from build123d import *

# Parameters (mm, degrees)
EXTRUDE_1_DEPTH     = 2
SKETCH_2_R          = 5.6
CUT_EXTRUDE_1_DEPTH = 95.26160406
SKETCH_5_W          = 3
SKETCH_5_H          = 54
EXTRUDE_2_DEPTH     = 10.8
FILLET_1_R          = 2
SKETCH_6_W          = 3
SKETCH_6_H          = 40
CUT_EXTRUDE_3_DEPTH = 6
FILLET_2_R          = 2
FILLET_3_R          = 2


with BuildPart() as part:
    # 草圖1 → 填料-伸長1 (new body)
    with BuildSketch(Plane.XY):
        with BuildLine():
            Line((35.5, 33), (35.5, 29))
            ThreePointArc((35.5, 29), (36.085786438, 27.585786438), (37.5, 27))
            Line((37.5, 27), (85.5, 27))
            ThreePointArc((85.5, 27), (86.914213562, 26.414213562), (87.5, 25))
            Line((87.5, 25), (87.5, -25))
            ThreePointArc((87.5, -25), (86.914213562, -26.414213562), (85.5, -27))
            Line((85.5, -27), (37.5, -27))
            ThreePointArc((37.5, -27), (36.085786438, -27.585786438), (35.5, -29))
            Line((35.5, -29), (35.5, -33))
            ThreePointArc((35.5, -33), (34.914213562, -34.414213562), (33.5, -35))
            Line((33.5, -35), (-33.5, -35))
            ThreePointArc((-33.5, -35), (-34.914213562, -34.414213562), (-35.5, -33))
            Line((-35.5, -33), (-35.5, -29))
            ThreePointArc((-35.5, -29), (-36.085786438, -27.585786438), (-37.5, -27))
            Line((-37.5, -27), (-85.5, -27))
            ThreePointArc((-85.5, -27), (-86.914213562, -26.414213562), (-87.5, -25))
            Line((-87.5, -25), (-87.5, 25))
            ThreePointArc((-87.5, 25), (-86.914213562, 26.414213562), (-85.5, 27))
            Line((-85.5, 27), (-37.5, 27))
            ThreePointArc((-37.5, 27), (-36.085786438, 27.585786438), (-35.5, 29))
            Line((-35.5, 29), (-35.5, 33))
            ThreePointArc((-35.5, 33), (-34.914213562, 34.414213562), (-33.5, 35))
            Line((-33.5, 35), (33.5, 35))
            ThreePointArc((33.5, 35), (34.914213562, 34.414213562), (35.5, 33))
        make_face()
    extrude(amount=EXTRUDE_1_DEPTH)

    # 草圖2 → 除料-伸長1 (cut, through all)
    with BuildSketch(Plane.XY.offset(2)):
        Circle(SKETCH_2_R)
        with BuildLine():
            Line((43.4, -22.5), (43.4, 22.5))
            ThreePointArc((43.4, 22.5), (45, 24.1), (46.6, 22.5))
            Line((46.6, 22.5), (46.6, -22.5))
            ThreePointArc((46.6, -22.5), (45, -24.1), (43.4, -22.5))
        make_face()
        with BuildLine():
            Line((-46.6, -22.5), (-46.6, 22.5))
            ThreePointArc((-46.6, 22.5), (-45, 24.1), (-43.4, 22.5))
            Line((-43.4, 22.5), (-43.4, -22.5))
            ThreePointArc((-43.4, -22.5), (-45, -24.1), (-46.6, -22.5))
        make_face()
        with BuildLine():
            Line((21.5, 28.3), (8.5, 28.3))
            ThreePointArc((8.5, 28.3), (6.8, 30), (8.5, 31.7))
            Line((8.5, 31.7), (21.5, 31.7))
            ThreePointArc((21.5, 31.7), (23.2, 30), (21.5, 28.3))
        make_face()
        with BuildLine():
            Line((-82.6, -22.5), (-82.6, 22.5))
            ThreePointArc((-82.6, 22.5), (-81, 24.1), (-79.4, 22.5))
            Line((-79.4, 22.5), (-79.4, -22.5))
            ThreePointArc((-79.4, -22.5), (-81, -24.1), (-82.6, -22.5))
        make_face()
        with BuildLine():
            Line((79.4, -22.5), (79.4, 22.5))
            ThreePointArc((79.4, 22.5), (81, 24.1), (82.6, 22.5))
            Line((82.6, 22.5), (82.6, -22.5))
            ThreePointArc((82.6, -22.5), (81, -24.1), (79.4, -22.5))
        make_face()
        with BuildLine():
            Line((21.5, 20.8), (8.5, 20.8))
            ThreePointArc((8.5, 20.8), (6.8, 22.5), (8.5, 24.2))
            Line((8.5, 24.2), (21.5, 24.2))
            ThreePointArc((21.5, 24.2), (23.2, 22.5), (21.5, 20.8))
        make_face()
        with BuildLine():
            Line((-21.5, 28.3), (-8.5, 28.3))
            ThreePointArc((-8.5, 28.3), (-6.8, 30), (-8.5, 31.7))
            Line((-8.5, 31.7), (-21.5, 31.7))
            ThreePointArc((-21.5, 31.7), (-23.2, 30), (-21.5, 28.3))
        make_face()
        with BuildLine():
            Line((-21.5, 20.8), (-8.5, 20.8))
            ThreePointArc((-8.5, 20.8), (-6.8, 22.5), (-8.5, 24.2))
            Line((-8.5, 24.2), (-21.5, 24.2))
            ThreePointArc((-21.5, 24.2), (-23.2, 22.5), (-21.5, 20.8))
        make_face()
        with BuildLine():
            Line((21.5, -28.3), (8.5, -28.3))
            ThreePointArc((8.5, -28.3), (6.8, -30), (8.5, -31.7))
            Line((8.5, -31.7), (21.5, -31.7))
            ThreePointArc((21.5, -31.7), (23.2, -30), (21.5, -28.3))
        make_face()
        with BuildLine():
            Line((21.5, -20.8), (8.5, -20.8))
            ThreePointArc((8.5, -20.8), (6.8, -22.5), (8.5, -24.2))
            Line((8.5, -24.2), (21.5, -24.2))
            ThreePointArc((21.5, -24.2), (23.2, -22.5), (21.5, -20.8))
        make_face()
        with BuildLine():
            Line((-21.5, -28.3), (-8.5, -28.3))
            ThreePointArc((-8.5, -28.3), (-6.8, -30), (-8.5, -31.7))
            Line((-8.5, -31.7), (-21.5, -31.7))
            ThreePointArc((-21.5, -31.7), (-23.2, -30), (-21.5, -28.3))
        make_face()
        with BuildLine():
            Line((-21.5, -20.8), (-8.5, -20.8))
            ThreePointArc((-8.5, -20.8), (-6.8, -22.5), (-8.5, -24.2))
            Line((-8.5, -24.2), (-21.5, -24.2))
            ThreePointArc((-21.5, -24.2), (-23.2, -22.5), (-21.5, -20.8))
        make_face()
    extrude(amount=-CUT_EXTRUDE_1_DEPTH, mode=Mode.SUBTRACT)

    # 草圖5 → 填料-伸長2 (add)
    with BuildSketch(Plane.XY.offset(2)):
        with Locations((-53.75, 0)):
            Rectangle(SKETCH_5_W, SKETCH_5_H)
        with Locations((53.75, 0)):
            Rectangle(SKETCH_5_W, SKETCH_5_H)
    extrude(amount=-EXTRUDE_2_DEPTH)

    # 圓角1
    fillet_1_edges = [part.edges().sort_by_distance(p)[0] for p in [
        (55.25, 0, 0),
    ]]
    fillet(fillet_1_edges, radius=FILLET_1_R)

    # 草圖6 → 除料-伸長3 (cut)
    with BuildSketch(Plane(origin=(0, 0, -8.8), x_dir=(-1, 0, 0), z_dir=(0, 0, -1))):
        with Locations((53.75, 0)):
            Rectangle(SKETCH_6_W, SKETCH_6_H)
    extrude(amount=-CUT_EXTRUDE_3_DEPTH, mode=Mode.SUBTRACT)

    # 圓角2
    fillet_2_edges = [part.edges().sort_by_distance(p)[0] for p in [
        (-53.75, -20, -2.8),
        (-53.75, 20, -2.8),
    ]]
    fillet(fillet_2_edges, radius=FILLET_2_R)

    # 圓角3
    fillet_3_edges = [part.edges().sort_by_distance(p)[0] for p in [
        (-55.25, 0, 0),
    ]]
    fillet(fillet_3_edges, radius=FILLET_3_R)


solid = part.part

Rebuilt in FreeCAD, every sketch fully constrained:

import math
import FreeCAD as App
import Part
import Sketcher
from FreeCAD import Vector
Q = App.Units.Quantity


def edges_at(feature, points):
    """Names of the edges that pass closest to the given points."""
    edges = feature.Shape.Edges
    near = lambda p: min(range(len(edges)), key=lambda i: edges[i].distToShape(Part.Vertex(*p))[0])
    return sorted({f"Edge{near(p) + 1}" for p in points})


def add_polygon(sketch, points):
    """Adds a closed chain of lines whose ends are joined by coincident constraints."""
    first, n = sketch.GeometryCount, len(points)
    for a, b in zip(points, points[1:] + points[:1]):
        sketch.addGeometry(Part.LineSegment(App.Vector(*a, 0), App.Vector(*b, 0)), False)
    for i in range(n):
        sketch.addConstraint(Sketcher.Constraint("Coincident", first + i, 2, first + (i + 1) % n, 1))

doc = App.newDocument("Part")
params = doc.addObject("Spreadsheet::Sheet", "Params")
for row, (alias, value) in enumerate([
    ("sketch1_radius", "2 mm"),
    ("sketch1_width", "67 mm"),
    ("sketch1_width2", "48 mm"),
    ("sketch1_height", "4 mm"),
    ("sketch1_height2", "50 mm"),
    ("pad1_length", "2 mm"),
    ("sketch2_diameter", "11.2 mm"),
    ("sketch2_radius", "1.6 mm"),
    ("sketch2_radius2", "1.7 mm"),
    ("sketch2_width", "13 mm"),
    ("sketch2_height", "45 mm"),
    ("sketch3_width", "3 mm"),
    ("sketch3_height", "54 mm"),
    ("pad2_length", "10.8 mm"),
    ("fillet_radius", "2 mm"),
    ("sketch4_width", "3 mm"),
    ("sketch4_height", "40 mm"),
    ("pocket2_length", "6 mm"),
    ("fillet2_radius", "2 mm"),
    ("fillet3_radius", "2 mm"),
], start=1):
    params.set(f"A{row}", alias)
    params.set(f"B{row}", "=" + value)
    params.setAlias(f"B{row}", alias)

body = doc.addObject("PartDesign::Body", "Body")

# Sketch on XY plane
sketch1 = doc.addObject("Sketcher::SketchObject", "Sketch")
body.addObject(sketch1)
sketch1.AttachmentSupport = (doc.XY_Plane, [""])
sketch1.MapMode = "FlatFace"
sketch1.addGeometry([
    Part.LineSegment(Vector(35.5, 29, 0), Vector(35.5, 33, 0)),  # 0
    Part.ArcOfCircle(Part.Circle(Vector(33.5, 33, 0), Vector(0, 0, 1), 2), math.radians(0), math.radians(90)),  # 1
    Part.LineSegment(Vector(33.5, 35, 0), Vector(-33.5, 35, 0)),  # 2
    Part.ArcOfCircle(Part.Circle(Vector(-33.5, 33, 0), Vector(0, 0, 1), 2), math.radians(90), math.radians(180)),  # 3
    Part.LineSegment(Vector(-35.5, 33, 0), Vector(-35.5, 29, 0)),  # 4
    Part.ArcOfCircle(Part.Circle(Vector(-37.5, 29, 0), Vector(0, 0, 1), 2), math.radians(-90), math.radians(0)),  # 5
    Part.LineSegment(Vector(-37.5, 27, 0), Vector(-85.5, 27, 0)),  # 6
    Part.ArcOfCircle(Part.Circle(Vector(-85.5, 25, 0), Vector(0, 0, 1), 2), math.radians(90), math.radians(180)),  # 7
    Part.LineSegment(Vector(-87.5, 25, 0), Vector(-87.5, -25, 0)),  # 8
    Part.ArcOfCircle(Part.Circle(Vector(-85.5, -25, 0), Vector(0, 0, 1), 2), math.radians(-180), math.radians(-90)),  # 9
    Part.LineSegment(Vector(-85.5, -27, 0), Vector(-37.5, -27, 0)),  # 10
    Part.ArcOfCircle(Part.Circle(Vector(-37.5, -29, 0), Vector(0, 0, 1), 2), math.radians(0), math.radians(90)),  # 11
    Part.LineSegment(Vector(-35.5, -29, 0), Vector(-35.5, -33, 0)),  # 12
    Part.ArcOfCircle(Part.Circle(Vector(-33.5, -33, 0), Vector(0, 0, 1), 2), math.radians(-180), math.radians(-90)),  # 13
    Part.LineSegment(Vector(-33.5, -35, 0), Vector(33.5, -35, 0)),  # 14
    Part.ArcOfCircle(Part.Circle(Vector(33.5, -33, 0), Vector(0, 0, 1), 2), math.radians(-90), math.radians(0)),  # 15
    Part.LineSegment(Vector(35.5, -33, 0), Vector(35.5, -29, 0)),  # 16
    Part.ArcOfCircle(Part.Circle(Vector(37.5, -29, 0), Vector(0, 0, 1), 2), math.radians(90), math.radians(180)),  # 17
    Part.LineSegment(Vector(37.5, -27, 0), Vector(85.5, -27, 0)),  # 18
    Part.ArcOfCircle(Part.Circle(Vector(85.5, -25, 0), Vector(0, 0, 1), 2), math.radians(-90), math.radians(0)),  # 19
    Part.LineSegment(Vector(87.5, -25, 0), Vector(87.5, 25, 0)),  # 20
    Part.ArcOfCircle(Part.Circle(Vector(85.5, 25, 0), Vector(0, 0, 1), 2), math.radians(0), math.radians(90)),  # 21
    Part.LineSegment(Vector(85.5, 27, 0), Vector(37.5, 27, 0)),  # 22
    Part.ArcOfCircle(Part.Circle(Vector(37.5, 29, 0), Vector(0, 0, 1), 2), math.radians(-180), math.radians(-90)),  # 23
], False)
sketch1.addConstraint([
    Sketcher.Constraint("Tangent", 0, 2, 1, 1),
    Sketcher.Constraint("Tangent", 1, 2, 2, 1),
    Sketcher.Constraint("Tangent", 2, 2, 3, 1),
    Sketcher.Constraint("Tangent", 3, 2, 4, 1),
    Sketcher.Constraint("Tangent", 4, 2, 5, 2),
    Sketcher.Constraint("Tangent", 5, 1, 6, 1),
    Sketcher.Constraint("Tangent", 6, 2, 7, 1),
    Sketcher.Constraint("Tangent", 7, 2, 8, 1),
    Sketcher.Constraint("Tangent", 8, 2, 9, 1),
    Sketcher.Constraint("Tangent", 9, 2, 10, 1),
    Sketcher.Constraint("Tangent", 10, 2, 11, 2),
    Sketcher.Constraint("Tangent", 11, 1, 12, 1),
    Sketcher.Constraint("Tangent", 12, 2, 13, 1),
    Sketcher.Constraint("Tangent", 13, 2, 14, 1),
    Sketcher.Constraint("Tangent", 14, 2, 15, 1),
    Sketcher.Constraint("Tangent", 15, 2, 16, 1),
    Sketcher.Constraint("Tangent", 16, 2, 17, 2),
    Sketcher.Constraint("Tangent", 17, 1, 18, 1),
    Sketcher.Constraint("Tangent", 18, 2, 19, 1),
    Sketcher.Constraint("Tangent", 19, 2, 20, 1),
    Sketcher.Constraint("Tangent", 20, 2, 21, 1),
    Sketcher.Constraint("Tangent", 21, 2, 22, 1),
    Sketcher.Constraint("Tangent", 22, 2, 23, 2),
    Sketcher.Constraint("Tangent", 23, 1, 0, 1),
    Sketcher.Constraint("Vertical", 0),
    Sketcher.Constraint("Horizontal", 2),
    Sketcher.Constraint("Vertical", 4),
    Sketcher.Constraint("Horizontal", 6),
    Sketcher.Constraint("Vertical", 8),
    Sketcher.Constraint("Horizontal", 10),
    Sketcher.Constraint("Vertical", 12),
    Sketcher.Constraint("Horizontal", 14),
    Sketcher.Constraint("Vertical", 16),
    Sketcher.Constraint("Horizontal", 18),
    Sketcher.Constraint("Vertical", 20),
    Sketcher.Constraint("Horizontal", 22),
    Sketcher.Constraint("Equal", 1, 3),
    Sketcher.Constraint("Equal", 3, 5),
    Sketcher.Constraint("Equal", 5, 7),
    Sketcher.Constraint("Equal", 7, 9),
    Sketcher.Constraint("Equal", 9, 11),
    Sketcher.Constraint("Equal", 11, 13),
    Sketcher.Constraint("Equal", 13, 15),
    Sketcher.Constraint("Equal", 15, 17),
    Sketcher.Constraint("Equal", 17, 19),
    Sketcher.Constraint("Equal", 19, 21),
    Sketcher.Constraint("Equal", 21, 23),
    Sketcher.Constraint("Symmetric", 1, 3, 13, 3, -1, 1),
    Sketcher.Constraint("Symmetric", 5, 3, 17, 3, -1, 1),
    Sketcher.Constraint("Symmetric", 9, 3, 21, 3, -1, 1),
    Sketcher.Constraint("Symmetric", 11, 3, 17, 3, -2),
    Sketcher.Constraint("Radius", 1, Q("2 mm")),
    Sketcher.Constraint("DistanceX", 2, 2, 2, 1, Q("67 mm")),
    Sketcher.Constraint("DistanceX", 6, 2, 6, 1, Q("48 mm")),
    Sketcher.Constraint("DistanceY", 0, 1, 0, 2, Q("4 mm")),
    Sketcher.Constraint("DistanceY", 8, 2, 8, 1, Q("50 mm")),
])
sketch1.setExpression("Constraints[51]", "Params.sketch1_radius")
sketch1.setExpression("Constraints[52]", "Params.sketch1_width")
sketch1.setExpression("Constraints[53]", "Params.sketch1_width2")
sketch1.setExpression("Constraints[54]", "Params.sketch1_height")
sketch1.setExpression("Constraints[55]", "Params.sketch1_height2")
pad1 = doc.addObject("PartDesign::Pad", "Pad")
body.addObject(pad1)
pad1.Profile = sketch1
pad1.setExpression("Length", "Params.pad1_length")

# Sketch on XY plane
sketch2 = doc.addObject("Sketcher::SketchObject", "Sketch001")
body.addObject(sketch2)
sketch2.AttachmentSupport = (doc.XY_Plane, [""])
sketch2.MapMode = "FlatFace"
sketch2.AttachmentOffset = App.Placement(Vector(0, 0, 2), App.Rotation())
sketch2.addGeometry([
    Part.Circle(Vector(0, 0, 0), Vector(0, 0, 1), 5.6),  # 0
    Part.LineSegment(Vector(43.4, 22.5, 0), Vector(43.4, -22.5, 0)),  # 1
    Part.ArcOfCircle(Part.Circle(Vector(45, -22.5, 0), Vector(0, 0, 1), 1.6), math.radians(180), math.radians(360)),  # 2
    Part.LineSegment(Vector(46.6, -22.5, 0), Vector(46.6, 22.5, 0)),  # 3
    Part.ArcOfCircle(Part.Circle(Vector(45, 22.5, 0), Vector(0, 0, 1), 1.6), math.radians(0), math.radians(180)),  # 4
    Part.LineSegment(Vector(-46.6, 22.5, 0), Vector(-46.6, -22.5, 0)),  # 5
    Part.ArcOfCircle(Part.Circle(Vector(-45, -22.5, 0), Vector(0, 0, 1), 1.6), math.radians(180), math.radians(360)),  # 6
    Part.LineSegment(Vector(-43.4, -22.5, 0), Vector(-43.4, 22.5, 0)),  # 7
    Part.ArcOfCircle(Part.Circle(Vector(-45, 22.5, 0), Vector(0, 0, 1), 1.6), math.radians(0), math.radians(180)),  # 8
    Part.LineSegment(Vector(8.5, 28.3, 0), Vector(21.5, 28.3, 0)),  # 9
    Part.ArcOfCircle(Part.Circle(Vector(21.5, 30, 0), Vector(0, 0, 1), 1.7), math.radians(-90), math.radians(90)),  # 10
    Part.LineSegment(Vector(21.5, 31.7, 0), Vector(8.5, 31.7, 0)),  # 11
    Part.ArcOfCircle(Part.Circle(Vector(8.5, 30, 0), Vector(0, 0, 1), 1.7), math.radians(90), math.radians(270)),  # 12
    Part.LineSegment(Vector(-82.6, 22.5, 0), Vector(-82.6, -22.5, 0)),  # 13
    Part.ArcOfCircle(Part.Circle(Vector(-81, -22.5, 0), Vector(0, 0, 1), 1.6), math.radians(180), math.radians(360)),  # 14
    Part.LineSegment(Vector(-79.4, -22.5, 0), Vector(-79.4, 22.5, 0)),  # 15
    Part.ArcOfCircle(Part.Circle(Vector(-81, 22.5, 0), Vector(0, 0, 1), 1.6), math.radians(0), math.radians(180)),  # 16
    Part.LineSegment(Vector(79.4, 22.5, 0), Vector(79.4, -22.5, 0)),  # 17
    Part.ArcOfCircle(Part.Circle(Vector(81, -22.5, 0), Vector(0, 0, 1), 1.6), math.radians(180), math.radians(360)),  # 18
    Part.LineSegment(Vector(82.6, -22.5, 0), Vector(82.6, 22.5, 0)),  # 19
    Part.ArcOfCircle(Part.Circle(Vector(81, 22.5, 0), Vector(0, 0, 1), 1.6), math.radians(0), math.radians(180)),  # 20
    Part.LineSegment(Vector(8.5, 20.8, 0), Vector(21.5, 20.8, 0)),  # 21
    Part.ArcOfCircle(Part.Circle(Vector(21.5, 22.5, 0), Vector(0, 0, 1), 1.7), math.radians(-90), math.radians(90)),  # 22
    Part.LineSegment(Vector(21.5, 24.2, 0), Vector(8.5, 24.2, 0)),  # 23
    Part.ArcOfCircle(Part.Circle(Vector(8.5, 22.5, 0), Vector(0, 0, 1), 1.7), math.radians(90), math.radians(270)),  # 24
    Part.LineSegment(Vector(-21.5, 28.3, 0), Vector(-8.5, 28.3, 0)),  # 25
    Part.ArcOfCircle(Part.Circle(Vector(-8.5, 30, 0), Vector(0, 0, 1), 1.7), math.radians(-90), math.radians(90)),  # 26
    Part.LineSegment(Vector(-8.5, 31.7, 0), Vector(-21.5, 31.7, 0)),  # 27
    Part.ArcOfCircle(Part.Circle(Vector(-21.5, 30, 0), Vector(0, 0, 1), 1.7), math.radians(90), math.radians(270)),  # 28
    Part.LineSegment(Vector(-21.5, 20.8, 0), Vector(-8.5, 20.8, 0)),  # 29
    Part.ArcOfCircle(Part.Circle(Vector(-8.5, 22.5, 0), Vector(0, 0, 1), 1.7), math.radians(-90), math.radians(90)),  # 30
    Part.LineSegment(Vector(-8.5, 24.2, 0), Vector(-21.5, 24.2, 0)),  # 31
    Part.ArcOfCircle(Part.Circle(Vector(-21.5, 22.5, 0), Vector(0, 0, 1), 1.7), math.radians(90), math.radians(270)),  # 32
    Part.LineSegment(Vector(21.5, -28.3, 0), Vector(8.5, -28.3, 0)),  # 33
    Part.ArcOfCircle(Part.Circle(Vector(8.5, -30, 0), Vector(0, 0, 1), 1.7), math.radians(90), math.radians(270)),  # 34
    Part.LineSegment(Vector(8.5, -31.7, 0), Vector(21.5, -31.7, 0)),  # 35
    Part.ArcOfCircle(Part.Circle(Vector(21.5, -30, 0), Vector(0, 0, 1), 1.7), math.radians(-90), math.radians(90)),  # 36
    Part.LineSegment(Vector(21.5, -20.8, 0), Vector(8.5, -20.8, 0)),  # 37
    Part.ArcOfCircle(Part.Circle(Vector(8.5, -22.5, 0), Vector(0, 0, 1), 1.7), math.radians(90), math.radians(270)),  # 38
    Part.LineSegment(Vector(8.5, -24.2, 0), Vector(21.5, -24.2, 0)),  # 39
    Part.ArcOfCircle(Part.Circle(Vector(21.5, -22.5, 0), Vector(0, 0, 1), 1.7), math.radians(-90), math.radians(90)),  # 40
    Part.LineSegment(Vector(-8.5, -28.3, 0), Vector(-21.5, -28.3, 0)),  # 41
    Part.ArcOfCircle(Part.Circle(Vector(-21.5, -30, 0), Vector(0, 0, 1), 1.7), math.radians(90), math.radians(270)),  # 42
    Part.LineSegment(Vector(-21.5, -31.7, 0), Vector(-8.5, -31.7, 0)),  # 43
    Part.ArcOfCircle(Part.Circle(Vector(-8.5, -30, 0), Vector(0, 0, 1), 1.7), math.radians(-90), math.radians(90)),  # 44
    Part.LineSegment(Vector(-8.5, -20.8, 0), Vector(-21.5, -20.8, 0)),  # 45
    Part.ArcOfCircle(Part.Circle(Vector(-21.5, -22.5, 0), Vector(0, 0, 1), 1.7), math.radians(90), math.radians(270)),  # 46
    Part.LineSegment(Vector(-21.5, -24.2, 0), Vector(-8.5, -24.2, 0)),  # 47
    Part.ArcOfCircle(Part.Circle(Vector(-8.5, -22.5, 0), Vector(0, 0, 1), 1.7), math.radians(-90), math.radians(90)),  # 48
], False)
sketch2.addConstraint([
    Sketcher.Constraint("Tangent", 1, 2, 2, 1),
    Sketcher.Constraint("Tangent", 2, 2, 3, 1),
    Sketcher.Constraint("Tangent", 3, 2, 4, 1),
    Sketcher.Constraint("Tangent", 4, 2, 1, 1),
    Sketcher.Constraint("Tangent", 5, 2, 6, 1),
    Sketcher.Constraint("Tangent", 6, 2, 7, 1),
    Sketcher.Constraint("Tangent", 7, 2, 8, 1),
    Sketcher.Constraint("Tangent", 8, 2, 5, 1),
    Sketcher.Constraint("Tangent", 9, 2, 10, 1),
    Sketcher.Constraint("Tangent", 10, 2, 11, 1),
    Sketcher.Constraint("Tangent", 11, 2, 12, 1),
    Sketcher.Constraint("Tangent", 12, 2, 9, 1),
    Sketcher.Constraint("Tangent", 13, 2, 14, 1),
    Sketcher.Constraint("Tangent", 14, 2, 15, 1),
    Sketcher.Constraint("Tangent", 15, 2, 16, 1),
    Sketcher.Constraint("Tangent", 16, 2, 13, 1),
    Sketcher.Constraint("Tangent", 17, 2, 18, 1),
    Sketcher.Constraint("Tangent", 18, 2, 19, 1),
    Sketcher.Constraint("Tangent", 19, 2, 20, 1),
    Sketcher.Constraint("Tangent", 20, 2, 17, 1),
    Sketcher.Constraint("Tangent", 21, 2, 22, 1),
    Sketcher.Constraint("Tangent", 22, 2, 23, 1),
    Sketcher.Constraint("Tangent", 23, 2, 24, 1),
    Sketcher.Constraint("Tangent", 24, 2, 21, 1),
    Sketcher.Constraint("Tangent", 25, 2, 26, 1),
    Sketcher.Constraint("Tangent", 26, 2, 27, 1),
    Sketcher.Constraint("Tangent", 27, 2, 28, 1),
    Sketcher.Constraint("Tangent", 28, 2, 25, 1),
    Sketcher.Constraint("Tangent", 29, 2, 30, 1),
    Sketcher.Constraint("Tangent", 30, 2, 31, 1),
    Sketcher.Constraint("Tangent", 31, 2, 32, 1),
    Sketcher.Constraint("Tangent", 32, 2, 29, 1),
    Sketcher.Constraint("Tangent", 33, 2, 34, 1),
    Sketcher.Constraint("Tangent", 34, 2, 35, 1),
    Sketcher.Constraint("Tangent", 35, 2, 36, 1),
    Sketcher.Constraint("Tangent", 36, 2, 33, 1),
    Sketcher.Constraint("Tangent", 37, 2, 38, 1),
    Sketcher.Constraint("Tangent", 38, 2, 39, 1),
    Sketcher.Constraint("Tangent", 39, 2, 40, 1),
    Sketcher.Constraint("Tangent", 40, 2, 37, 1),
    Sketcher.Constraint("Tangent", 41, 2, 42, 1),
    Sketcher.Constraint("Tangent", 42, 2, 43, 1),
    Sketcher.Constraint("Tangent", 43, 2, 44, 1),
    Sketcher.Constraint("Tangent", 44, 2, 41, 1),
    Sketcher.Constraint("Tangent", 45, 2, 46, 1),
    Sketcher.Constraint("Tangent", 46, 2, 47, 1),
    Sketcher.Constraint("Tangent", 47, 2, 48, 1),
    Sketcher.Constraint("Tangent", 48, 2, 45, 1),
    Sketcher.Constraint("Vertical", 1),
    Sketcher.Constraint("Vertical", 3),
    Sketcher.Constraint("Vertical", 5),
    Sketcher.Constraint("Vertical", 7),
    Sketcher.Constraint("Horizontal", 9),
    Sketcher.Constraint("Horizontal", 11),
    Sketcher.Constraint("Vertical", 13),
    Sketcher.Constraint("Vertical", 15),
    Sketcher.Constraint("Vertical", 17),
    Sketcher.Constraint("Vertical", 19),
    Sketcher.Constraint("Horizontal", 21),
    Sketcher.Constraint("Horizontal", 23),
    Sketcher.Constraint("Horizontal", 25),
    Sketcher.Constraint("Horizontal", 27),
    Sketcher.Constraint("Horizontal", 29),
    Sketcher.Constraint("Horizontal", 31),
    Sketcher.Constraint("Horizontal", 33),
    Sketcher.Constraint("Horizontal", 35),
    Sketcher.Constraint("Horizontal", 37),
    Sketcher.Constraint("Horizontal", 39),
    Sketcher.Constraint("Horizontal", 41),
    Sketcher.Constraint("Horizontal", 43),
    Sketcher.Constraint("Horizontal", 45),
    Sketcher.Constraint("Horizontal", 47),
    Sketcher.Constraint("Coincident", 0, 3, -1, 1),
    Sketcher.Constraint("Equal", 4, 6),
    Sketcher.Constraint("Equal", 8, 14),
    Sketcher.Constraint("Equal", 16, 18),
    Sketcher.Constraint("Equal", 12, 22),
    Sketcher.Constraint("Equal", 24, 26),
    Sketcher.Constraint("Equal", 28, 30),
    Sketcher.Constraint("Equal", 32, 34),
    Sketcher.Constraint("Equal", 36, 38),
    Sketcher.Constraint("Equal", 40, 42),
    Sketcher.Constraint("Equal", 44, 46),
    Sketcher.Constraint("Symmetric", 4, 3, 6, 3, -1, 1),
    Sketcher.Constraint("Symmetric", 16, 3, 18, 3, -1, 1),
    Sketcher.Constraint("Symmetric", 26, 3, 34, 3, -1, 1),
    Sketcher.Constraint("Symmetric", 30, 3, 38, 3, -1, 1),
    Sketcher.Constraint("Symmetric", 10, 3, 42, 3, -1, 1),
    Sketcher.Constraint("Symmetric", 22, 3, 46, 3, -1, 1),
    Sketcher.Constraint("Symmetric", 12, 3, 26, 3, -2),
    Sketcher.Constraint("Symmetric", 24, 3, 30, 3, -2),
    Sketcher.Constraint("Horizontal", 2, 3, 6, 3),
    Sketcher.Constraint("Horizontal", 4, 3, 8, 3),
    Sketcher.Constraint("Horizontal", 6, 3, 14, 3),
    Sketcher.Constraint("Horizontal", 8, 3, 16, 3),
    Sketcher.Constraint("Horizontal", 16, 3, 20, 3),
    Sketcher.Constraint("Horizontal", 20, 3, 22, 3),
    Sketcher.Constraint("Vertical", 10, 3, 22, 3),
    Sketcher.Constraint("Vertical", 12, 3, 24, 3),
    Sketcher.Constraint("Vertical", 28, 3, 32, 3),
    Sketcher.Constraint("Vertical", 22, 3, 36, 3),
    Sketcher.Constraint("Vertical", 36, 3, 40, 3),
    Sketcher.Constraint("Vertical", 32, 3, 42, 3),
    Sketcher.Constraint("Vertical", 30, 3, 44, 3),
    Sketcher.Constraint("Vertical", 44, 3, 48, 3),
    Sketcher.Constraint("Diameter", 0, Q("11.2 mm")),
    Sketcher.Constraint("Radius", 2, Q("1.6 mm")),
    Sketcher.Constraint("Radius", 10, Q("1.7 mm")),
    Sketcher.Constraint("DistanceX", 9, 1, 9, 2, Q("13 mm")),
    Sketcher.Constraint("DistanceY", 1, 2, 1, 1, Q("45 mm")),
    Sketcher.Constraint("DistanceX", -1, 1, 2, 3, Q("45 mm")),
    Sketcher.Constraint("DistanceY", -1, 1, 10, 3, Q("30 mm")),
    Sketcher.Constraint("DistanceX", 14, 3, -1, 1, Q("81 mm")),
    Sketcher.Constraint("DistanceX", -1, 1, 10, 3, Q("21.5 mm")),
])
sketch2.setExpression("Constraints[105]", "Params.sketch2_diameter")
sketch2.setExpression("Constraints[106]", "Params.sketch2_radius")
sketch2.setExpression("Constraints[107]", "Params.sketch2_radius2")
sketch2.setExpression("Constraints[108]", "Params.sketch2_width")
sketch2.setExpression("Constraints[109]", "Params.sketch2_height")
pocket1 = doc.addObject("PartDesign::Pocket", "Pocket")
body.addObject(pocket1)
pocket1.Profile = sketch2
pocket1.Type = "ThroughAll"

# Sketch on XY plane
sketch3 = doc.addObject("Sketcher::SketchObject", "Sketch002")
body.addObject(sketch3)
sketch3.AttachmentSupport = (doc.XY_Plane, [""])
sketch3.MapMode = "FlatFace"
sketch3.AttachmentOffset = App.Placement(Vector(0, 0, 2), App.Rotation())
add_polygon(sketch3, [(-55.2, 27), (-55.2, -27), (-52.2, -27), (-52.2, 27)])  # lines 0-3
add_polygon(sketch3, [(52.2, 27), (52.2, -27), (55.2, -27), (55.2, 27)])  # lines 4-7
sketch3.addConstraint([
    Sketcher.Constraint("Vertical", 0),
    Sketcher.Constraint("Horizontal", 1),
    Sketcher.Constraint("Vertical", 2),
    Sketcher.Constraint("Horizontal", 3),
    Sketcher.Constraint("Vertical", 4),
    Sketcher.Constraint("Horizontal", 5),
    Sketcher.Constraint("Vertical", 6),
    Sketcher.Constraint("Horizontal", 7),
    Sketcher.Constraint("Symmetric", 2, 2, 4, 2, -1, 1),
    Sketcher.Constraint("Symmetric", 0, 2, 6, 2, -1, 1),
    Sketcher.Constraint("Horizontal", 1, 2, 4, 2),
    Sketcher.Constraint("DistanceX", 1, 1, 1, 2, Q("3 mm")),
    Sketcher.Constraint("DistanceY", 0, 2, 0, 1, Q("54 mm")),
    Sketcher.Constraint("DistanceX", 1, 2, 4, 2, Q("104.5 mm")),
])
sketch3.setExpression("Constraints[19]", "Params.sketch3_width")
sketch3.setExpression("Constraints[20]", "Params.sketch3_height")
pad2 = doc.addObject("PartDesign::Pad", "Pad001")
body.addObject(pad2)
pad2.Profile = sketch3
pad2.setExpression("Length", "Params.pad2_length")
pad2.Reversed = True
doc.recompute()

fillet = doc.addObject("PartDesign::Fillet", "Fillet")
body.addObject(fillet)
fillet.Base = (pad2, edges_at(pad2, [(55.25, 0, 0)]))
fillet.setExpression("Radius", "Params.fillet_radius")

# Sketch on XY plane
sketch4 = doc.addObject("Sketcher::SketchObject", "Sketch003")
body.addObject(sketch4)
sketch4.AttachmentSupport = (doc.XY_Plane, [""])
sketch4.MapMode = "FlatFace"
sketch4.AttachmentOffset = App.Placement(Vector(0, 0, -8.8), App.Rotation())
add_polygon(sketch4, [(-52.2, 20), (-52.2, -20), (-55.2, -20), (-55.2, 20)])  # lines 0-3
sketch4.addConstraint([
    Sketcher.Constraint("Vertical", 0),
    Sketcher.Constraint("Horizontal", 1),
    Sketcher.Constraint("Vertical", 2),
    Sketcher.Constraint("Horizontal", 3),
    Sketcher.Constraint("DistanceX", 1, 2, 1, 1, Q("3 mm")),
    Sketcher.Constraint("DistanceY", 0, 2, 0, 1, Q("40 mm")),
    Sketcher.Constraint("DistanceY", 0, 2, -1, 1, Q("20 mm")),
    Sketcher.Constraint("DistanceX", 0, 2, -1, 1, Q("52.25 mm")),
])
sketch4.setExpression("Constraints[8]", "Params.sketch4_width")
sketch4.setExpression("Constraints[9]", "Params.sketch4_height")
pocket2 = doc.addObject("PartDesign::Pocket", "Pocket001")
body.addObject(pocket2)
pocket2.Profile = sketch4
pocket2.setExpression("Length", "Params.pocket2_length")
pocket2.Reversed = True
doc.recompute()

fillet2 = doc.addObject("PartDesign::Fillet", "Fillet001")
body.addObject(fillet2)
fillet2.Base = (pocket2, edges_at(pocket2, [(-53.75, -20, -2.8), (-53.75, 20, -2.8)]))
fillet2.setExpression("Radius", "Params.fillet2_radius")
doc.recompute()

fillet3 = doc.addObject("PartDesign::Fillet", "Fillet002")
body.addObject(fillet3)
fillet3.Base = (fillet2, edges_at(fillet2, [(-55.25, 0, 0)]))
fillet3.setExpression("Radius", "Params.fillet3_radius")

doc.recompute()
